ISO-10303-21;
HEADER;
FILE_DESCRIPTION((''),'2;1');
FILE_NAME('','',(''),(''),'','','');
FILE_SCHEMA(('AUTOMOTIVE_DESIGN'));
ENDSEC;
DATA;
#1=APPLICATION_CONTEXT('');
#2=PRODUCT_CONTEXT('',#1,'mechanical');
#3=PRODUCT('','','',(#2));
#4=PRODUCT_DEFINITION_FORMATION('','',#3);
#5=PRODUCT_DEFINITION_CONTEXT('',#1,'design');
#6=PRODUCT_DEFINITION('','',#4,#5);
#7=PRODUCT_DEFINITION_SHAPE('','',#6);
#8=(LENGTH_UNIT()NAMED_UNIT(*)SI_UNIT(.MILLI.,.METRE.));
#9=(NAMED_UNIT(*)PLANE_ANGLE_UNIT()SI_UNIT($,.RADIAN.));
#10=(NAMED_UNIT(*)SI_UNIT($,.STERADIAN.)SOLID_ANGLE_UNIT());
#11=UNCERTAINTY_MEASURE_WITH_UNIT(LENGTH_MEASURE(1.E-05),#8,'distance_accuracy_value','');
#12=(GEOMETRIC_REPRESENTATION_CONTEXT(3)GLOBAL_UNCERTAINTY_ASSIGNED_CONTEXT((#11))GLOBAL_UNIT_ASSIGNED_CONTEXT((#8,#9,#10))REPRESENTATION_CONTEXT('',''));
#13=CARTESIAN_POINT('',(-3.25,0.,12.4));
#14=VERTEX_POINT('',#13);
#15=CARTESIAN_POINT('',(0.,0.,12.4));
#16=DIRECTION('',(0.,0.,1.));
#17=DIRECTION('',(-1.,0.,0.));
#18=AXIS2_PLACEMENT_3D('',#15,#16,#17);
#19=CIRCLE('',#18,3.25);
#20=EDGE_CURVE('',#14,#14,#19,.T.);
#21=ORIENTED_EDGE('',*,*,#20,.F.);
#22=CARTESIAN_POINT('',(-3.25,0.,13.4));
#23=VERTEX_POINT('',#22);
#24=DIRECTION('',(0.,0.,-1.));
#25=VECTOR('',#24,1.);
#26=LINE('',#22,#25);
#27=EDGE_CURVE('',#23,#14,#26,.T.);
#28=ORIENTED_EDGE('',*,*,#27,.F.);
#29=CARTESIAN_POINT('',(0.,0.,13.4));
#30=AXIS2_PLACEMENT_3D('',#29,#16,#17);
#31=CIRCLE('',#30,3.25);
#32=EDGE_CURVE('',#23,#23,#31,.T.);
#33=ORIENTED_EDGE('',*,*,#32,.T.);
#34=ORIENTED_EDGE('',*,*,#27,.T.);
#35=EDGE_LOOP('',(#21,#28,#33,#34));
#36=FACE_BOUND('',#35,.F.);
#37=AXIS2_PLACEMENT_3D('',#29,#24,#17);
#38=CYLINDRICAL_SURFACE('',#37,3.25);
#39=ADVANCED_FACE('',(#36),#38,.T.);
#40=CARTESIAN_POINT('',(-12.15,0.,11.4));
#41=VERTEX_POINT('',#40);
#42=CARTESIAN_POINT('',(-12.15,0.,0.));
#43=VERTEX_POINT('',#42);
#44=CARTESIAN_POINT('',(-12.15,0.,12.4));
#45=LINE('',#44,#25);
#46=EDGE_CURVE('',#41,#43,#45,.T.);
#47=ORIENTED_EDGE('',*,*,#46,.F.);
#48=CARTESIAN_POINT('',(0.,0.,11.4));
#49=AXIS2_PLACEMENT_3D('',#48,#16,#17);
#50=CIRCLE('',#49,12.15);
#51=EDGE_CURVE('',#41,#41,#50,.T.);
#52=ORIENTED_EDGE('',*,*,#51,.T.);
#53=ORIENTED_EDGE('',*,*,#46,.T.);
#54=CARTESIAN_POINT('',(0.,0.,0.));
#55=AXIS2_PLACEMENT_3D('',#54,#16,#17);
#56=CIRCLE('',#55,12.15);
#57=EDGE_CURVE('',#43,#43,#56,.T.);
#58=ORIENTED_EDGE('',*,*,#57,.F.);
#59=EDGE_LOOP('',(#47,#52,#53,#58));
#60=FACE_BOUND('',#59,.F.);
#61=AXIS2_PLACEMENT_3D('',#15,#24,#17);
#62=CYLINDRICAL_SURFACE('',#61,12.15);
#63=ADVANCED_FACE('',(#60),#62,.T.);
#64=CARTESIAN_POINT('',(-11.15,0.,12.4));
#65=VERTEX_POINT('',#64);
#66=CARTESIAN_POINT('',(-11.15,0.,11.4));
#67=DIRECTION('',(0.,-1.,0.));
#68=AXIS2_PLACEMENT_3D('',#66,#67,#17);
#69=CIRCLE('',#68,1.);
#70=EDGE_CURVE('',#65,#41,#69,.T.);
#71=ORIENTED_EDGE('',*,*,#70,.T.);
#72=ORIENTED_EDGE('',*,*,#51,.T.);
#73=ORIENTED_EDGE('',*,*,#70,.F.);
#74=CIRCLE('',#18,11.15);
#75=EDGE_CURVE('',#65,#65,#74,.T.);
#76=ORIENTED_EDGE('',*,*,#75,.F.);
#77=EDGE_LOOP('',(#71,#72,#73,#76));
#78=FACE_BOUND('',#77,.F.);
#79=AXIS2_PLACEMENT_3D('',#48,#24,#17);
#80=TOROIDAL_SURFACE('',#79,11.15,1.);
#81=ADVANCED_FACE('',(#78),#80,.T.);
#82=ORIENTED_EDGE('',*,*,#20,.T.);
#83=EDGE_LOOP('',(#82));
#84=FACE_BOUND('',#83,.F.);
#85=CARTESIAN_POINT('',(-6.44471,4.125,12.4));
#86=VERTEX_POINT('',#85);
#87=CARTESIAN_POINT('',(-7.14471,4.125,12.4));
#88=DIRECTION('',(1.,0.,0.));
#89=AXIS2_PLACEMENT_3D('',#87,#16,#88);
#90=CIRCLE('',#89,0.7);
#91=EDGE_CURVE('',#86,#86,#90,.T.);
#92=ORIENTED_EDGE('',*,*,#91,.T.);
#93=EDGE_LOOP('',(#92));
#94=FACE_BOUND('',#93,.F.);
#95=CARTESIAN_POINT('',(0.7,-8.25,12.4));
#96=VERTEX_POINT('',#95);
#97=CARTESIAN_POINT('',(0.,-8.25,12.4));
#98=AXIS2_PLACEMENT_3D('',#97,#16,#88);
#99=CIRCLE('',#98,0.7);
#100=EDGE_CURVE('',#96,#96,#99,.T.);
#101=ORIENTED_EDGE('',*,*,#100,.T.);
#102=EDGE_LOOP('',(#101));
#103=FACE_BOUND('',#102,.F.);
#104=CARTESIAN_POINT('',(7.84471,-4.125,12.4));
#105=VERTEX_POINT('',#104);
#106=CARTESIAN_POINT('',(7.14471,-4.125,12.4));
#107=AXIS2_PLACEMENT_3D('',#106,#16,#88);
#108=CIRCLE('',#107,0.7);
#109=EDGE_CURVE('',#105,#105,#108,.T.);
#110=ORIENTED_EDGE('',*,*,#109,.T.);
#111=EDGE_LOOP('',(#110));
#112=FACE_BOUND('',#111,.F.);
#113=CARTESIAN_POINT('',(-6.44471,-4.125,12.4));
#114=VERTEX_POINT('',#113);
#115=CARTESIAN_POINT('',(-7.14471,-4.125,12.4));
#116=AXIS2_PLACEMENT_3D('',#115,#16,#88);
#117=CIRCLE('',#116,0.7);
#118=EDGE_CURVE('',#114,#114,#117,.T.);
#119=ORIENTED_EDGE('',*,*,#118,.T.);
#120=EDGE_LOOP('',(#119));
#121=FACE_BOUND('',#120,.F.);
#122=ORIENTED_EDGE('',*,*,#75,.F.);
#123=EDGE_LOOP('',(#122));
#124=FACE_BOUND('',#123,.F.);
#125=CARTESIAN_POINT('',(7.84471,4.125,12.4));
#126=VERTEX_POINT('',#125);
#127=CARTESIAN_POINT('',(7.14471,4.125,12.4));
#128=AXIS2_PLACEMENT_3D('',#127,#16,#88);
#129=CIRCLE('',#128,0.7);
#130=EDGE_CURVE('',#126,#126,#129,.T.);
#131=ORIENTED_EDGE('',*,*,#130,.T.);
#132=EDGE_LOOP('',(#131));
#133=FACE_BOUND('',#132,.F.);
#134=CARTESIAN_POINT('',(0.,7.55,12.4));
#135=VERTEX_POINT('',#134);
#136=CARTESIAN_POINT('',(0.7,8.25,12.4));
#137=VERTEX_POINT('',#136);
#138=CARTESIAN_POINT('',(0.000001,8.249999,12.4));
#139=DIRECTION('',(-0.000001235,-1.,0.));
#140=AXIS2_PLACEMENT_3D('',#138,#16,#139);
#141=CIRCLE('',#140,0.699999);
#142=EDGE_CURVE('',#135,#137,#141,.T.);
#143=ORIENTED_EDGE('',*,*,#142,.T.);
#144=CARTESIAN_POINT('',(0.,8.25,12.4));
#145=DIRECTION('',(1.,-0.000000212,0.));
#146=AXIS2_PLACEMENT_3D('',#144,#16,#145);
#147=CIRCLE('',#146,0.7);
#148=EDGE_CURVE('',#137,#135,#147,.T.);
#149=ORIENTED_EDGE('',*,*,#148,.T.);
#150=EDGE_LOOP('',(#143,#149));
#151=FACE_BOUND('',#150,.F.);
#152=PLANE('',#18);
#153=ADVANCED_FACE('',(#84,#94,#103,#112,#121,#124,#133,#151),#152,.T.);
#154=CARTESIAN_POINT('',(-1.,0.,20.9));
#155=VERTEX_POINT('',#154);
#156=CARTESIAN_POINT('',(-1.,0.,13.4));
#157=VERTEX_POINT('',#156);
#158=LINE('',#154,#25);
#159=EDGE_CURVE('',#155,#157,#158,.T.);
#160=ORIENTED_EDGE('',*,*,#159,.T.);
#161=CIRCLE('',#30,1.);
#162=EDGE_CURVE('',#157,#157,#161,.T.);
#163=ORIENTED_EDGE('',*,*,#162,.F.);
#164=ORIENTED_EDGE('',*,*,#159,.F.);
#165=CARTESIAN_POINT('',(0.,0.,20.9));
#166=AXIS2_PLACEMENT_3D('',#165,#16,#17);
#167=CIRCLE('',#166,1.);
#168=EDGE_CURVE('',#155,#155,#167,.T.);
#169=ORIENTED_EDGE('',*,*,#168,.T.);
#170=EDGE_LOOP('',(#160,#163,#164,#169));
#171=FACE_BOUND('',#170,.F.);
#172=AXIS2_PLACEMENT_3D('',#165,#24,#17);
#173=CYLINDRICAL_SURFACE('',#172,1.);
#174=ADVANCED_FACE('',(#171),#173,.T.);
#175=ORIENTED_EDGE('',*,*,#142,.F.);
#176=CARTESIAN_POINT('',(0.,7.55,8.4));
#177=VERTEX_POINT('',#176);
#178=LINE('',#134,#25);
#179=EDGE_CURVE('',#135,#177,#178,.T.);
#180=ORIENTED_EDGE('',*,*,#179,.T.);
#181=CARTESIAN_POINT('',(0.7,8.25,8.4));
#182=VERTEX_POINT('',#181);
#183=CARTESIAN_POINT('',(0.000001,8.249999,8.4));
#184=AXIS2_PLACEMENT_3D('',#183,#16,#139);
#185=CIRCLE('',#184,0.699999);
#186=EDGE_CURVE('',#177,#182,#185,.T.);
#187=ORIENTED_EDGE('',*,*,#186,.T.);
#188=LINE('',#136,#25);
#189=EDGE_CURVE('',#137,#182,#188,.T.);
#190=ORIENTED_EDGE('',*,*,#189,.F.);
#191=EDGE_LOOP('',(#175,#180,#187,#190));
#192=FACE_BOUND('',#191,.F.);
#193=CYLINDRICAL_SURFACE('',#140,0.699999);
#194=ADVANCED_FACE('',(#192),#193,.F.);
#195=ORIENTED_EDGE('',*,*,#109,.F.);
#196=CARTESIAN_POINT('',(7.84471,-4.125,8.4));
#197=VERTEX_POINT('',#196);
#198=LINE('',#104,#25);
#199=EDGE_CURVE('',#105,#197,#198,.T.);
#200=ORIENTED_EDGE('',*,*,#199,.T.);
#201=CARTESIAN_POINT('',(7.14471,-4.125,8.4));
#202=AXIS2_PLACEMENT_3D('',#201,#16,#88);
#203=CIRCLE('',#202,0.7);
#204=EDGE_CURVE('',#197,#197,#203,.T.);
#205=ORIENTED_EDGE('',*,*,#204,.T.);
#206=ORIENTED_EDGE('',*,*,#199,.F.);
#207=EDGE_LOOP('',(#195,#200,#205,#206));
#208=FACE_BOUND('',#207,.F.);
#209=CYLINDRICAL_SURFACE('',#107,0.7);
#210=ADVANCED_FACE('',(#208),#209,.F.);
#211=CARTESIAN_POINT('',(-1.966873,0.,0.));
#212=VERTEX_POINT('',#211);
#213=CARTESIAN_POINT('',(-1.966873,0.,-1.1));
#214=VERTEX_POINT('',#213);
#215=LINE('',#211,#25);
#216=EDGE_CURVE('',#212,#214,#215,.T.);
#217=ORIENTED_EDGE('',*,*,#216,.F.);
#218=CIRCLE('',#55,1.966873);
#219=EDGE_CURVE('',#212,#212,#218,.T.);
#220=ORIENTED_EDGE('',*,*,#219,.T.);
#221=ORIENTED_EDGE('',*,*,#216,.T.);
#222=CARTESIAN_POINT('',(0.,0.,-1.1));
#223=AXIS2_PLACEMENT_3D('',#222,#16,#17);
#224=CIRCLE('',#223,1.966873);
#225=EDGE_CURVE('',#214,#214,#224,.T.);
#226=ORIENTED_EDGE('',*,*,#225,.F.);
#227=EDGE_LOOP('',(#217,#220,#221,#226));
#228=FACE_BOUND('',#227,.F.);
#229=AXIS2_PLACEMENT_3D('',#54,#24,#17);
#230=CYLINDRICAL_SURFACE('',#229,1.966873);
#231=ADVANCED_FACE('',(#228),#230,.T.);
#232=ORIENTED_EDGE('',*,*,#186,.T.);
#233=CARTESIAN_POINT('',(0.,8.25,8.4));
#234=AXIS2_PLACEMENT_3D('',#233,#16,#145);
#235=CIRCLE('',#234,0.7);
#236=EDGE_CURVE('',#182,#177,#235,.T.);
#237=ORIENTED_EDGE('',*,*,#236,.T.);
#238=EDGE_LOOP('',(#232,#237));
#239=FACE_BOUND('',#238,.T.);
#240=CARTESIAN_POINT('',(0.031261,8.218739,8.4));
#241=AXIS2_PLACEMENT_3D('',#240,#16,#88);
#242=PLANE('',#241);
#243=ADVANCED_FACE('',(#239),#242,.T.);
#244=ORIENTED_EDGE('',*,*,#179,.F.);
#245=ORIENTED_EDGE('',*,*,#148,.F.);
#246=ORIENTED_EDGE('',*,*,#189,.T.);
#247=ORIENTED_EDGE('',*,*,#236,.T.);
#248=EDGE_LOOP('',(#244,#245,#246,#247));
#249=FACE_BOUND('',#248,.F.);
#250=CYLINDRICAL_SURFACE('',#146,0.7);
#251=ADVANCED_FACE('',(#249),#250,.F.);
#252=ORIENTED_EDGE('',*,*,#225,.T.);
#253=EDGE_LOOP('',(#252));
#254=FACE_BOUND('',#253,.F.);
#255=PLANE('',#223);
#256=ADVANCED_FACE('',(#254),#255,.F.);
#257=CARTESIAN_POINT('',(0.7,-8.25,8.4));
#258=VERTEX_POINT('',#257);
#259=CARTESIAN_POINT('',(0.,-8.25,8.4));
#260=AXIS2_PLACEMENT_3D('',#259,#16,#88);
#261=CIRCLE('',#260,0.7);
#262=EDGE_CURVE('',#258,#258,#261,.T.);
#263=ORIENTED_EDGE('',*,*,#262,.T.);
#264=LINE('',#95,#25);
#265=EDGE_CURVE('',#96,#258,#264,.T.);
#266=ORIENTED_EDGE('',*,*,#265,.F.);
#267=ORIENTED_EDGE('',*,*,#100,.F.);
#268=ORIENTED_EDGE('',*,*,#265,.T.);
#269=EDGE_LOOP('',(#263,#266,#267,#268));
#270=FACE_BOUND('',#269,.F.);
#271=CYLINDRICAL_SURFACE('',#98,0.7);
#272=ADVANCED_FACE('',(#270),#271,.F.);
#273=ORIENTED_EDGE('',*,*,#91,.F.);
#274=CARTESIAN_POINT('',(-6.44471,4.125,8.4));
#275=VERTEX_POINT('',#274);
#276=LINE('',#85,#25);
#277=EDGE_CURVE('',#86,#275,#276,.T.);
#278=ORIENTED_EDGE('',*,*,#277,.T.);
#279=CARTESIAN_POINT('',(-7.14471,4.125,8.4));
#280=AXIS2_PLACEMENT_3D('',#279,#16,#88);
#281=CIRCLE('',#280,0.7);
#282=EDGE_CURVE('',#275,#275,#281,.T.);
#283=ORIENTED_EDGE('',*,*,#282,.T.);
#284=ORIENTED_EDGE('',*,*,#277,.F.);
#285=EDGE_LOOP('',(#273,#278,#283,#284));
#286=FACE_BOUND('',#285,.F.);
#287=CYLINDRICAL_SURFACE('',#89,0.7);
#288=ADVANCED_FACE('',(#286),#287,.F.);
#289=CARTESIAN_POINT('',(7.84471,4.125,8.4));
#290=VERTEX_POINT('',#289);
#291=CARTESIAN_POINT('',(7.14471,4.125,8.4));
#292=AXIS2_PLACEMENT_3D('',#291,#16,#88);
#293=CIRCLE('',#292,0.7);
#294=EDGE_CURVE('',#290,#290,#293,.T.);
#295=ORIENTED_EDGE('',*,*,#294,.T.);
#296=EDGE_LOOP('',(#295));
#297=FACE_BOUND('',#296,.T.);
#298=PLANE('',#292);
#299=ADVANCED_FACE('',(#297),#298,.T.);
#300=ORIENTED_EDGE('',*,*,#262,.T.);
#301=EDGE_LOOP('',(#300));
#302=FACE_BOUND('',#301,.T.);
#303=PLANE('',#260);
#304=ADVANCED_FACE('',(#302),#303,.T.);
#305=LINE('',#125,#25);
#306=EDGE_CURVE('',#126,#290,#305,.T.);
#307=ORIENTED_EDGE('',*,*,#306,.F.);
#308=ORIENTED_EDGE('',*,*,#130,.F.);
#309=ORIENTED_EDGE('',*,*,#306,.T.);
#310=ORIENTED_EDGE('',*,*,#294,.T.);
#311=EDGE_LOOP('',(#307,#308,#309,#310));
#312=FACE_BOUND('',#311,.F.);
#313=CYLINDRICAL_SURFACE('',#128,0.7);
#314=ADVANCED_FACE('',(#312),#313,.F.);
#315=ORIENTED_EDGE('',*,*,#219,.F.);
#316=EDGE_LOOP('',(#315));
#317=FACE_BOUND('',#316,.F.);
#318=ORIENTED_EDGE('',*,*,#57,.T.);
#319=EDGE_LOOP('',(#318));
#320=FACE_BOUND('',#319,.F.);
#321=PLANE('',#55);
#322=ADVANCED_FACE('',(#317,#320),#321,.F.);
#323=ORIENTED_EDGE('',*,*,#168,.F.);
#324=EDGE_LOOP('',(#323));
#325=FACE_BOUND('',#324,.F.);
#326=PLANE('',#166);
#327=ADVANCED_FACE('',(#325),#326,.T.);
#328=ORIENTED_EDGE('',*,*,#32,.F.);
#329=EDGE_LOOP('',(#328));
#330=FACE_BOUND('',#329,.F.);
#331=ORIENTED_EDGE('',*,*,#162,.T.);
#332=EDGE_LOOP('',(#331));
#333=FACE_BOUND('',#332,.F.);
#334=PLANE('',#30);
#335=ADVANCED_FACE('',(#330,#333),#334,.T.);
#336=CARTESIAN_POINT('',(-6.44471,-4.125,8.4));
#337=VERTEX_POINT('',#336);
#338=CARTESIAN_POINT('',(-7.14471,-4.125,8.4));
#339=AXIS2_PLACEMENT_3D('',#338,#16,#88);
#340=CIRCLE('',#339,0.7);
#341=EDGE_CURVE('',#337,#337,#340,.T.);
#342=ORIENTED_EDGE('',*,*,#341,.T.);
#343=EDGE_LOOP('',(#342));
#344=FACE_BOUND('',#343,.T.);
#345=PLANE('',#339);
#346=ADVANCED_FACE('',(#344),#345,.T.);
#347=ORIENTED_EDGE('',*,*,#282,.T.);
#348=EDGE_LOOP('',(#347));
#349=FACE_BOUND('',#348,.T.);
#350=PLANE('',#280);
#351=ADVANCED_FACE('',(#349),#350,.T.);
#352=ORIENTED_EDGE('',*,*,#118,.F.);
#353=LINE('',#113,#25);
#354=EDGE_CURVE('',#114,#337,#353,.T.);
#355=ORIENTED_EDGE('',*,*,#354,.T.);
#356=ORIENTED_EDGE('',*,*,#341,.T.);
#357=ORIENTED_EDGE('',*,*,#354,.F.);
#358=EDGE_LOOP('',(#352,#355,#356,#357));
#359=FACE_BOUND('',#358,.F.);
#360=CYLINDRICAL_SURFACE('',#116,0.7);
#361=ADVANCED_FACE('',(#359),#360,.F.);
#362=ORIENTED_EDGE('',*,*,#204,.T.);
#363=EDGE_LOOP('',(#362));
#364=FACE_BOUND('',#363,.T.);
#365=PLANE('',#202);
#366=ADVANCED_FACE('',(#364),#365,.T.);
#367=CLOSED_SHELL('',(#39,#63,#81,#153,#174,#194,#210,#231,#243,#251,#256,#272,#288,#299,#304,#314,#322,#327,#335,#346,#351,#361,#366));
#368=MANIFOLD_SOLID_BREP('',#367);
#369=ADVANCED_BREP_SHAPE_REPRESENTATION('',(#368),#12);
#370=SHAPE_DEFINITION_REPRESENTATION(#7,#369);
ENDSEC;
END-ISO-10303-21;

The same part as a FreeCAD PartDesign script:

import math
import FreeCAD as App
import Part
import Sketcher

V = App.Vector
Q = App.Units.Quantity


def edges_at(feature, points):
    """Names of the edges that pass closest to the given points."""
    edges = feature.Shape.Edges
    near = lambda p: min(range(len(edges)), key=lambda i: edges[i].distToShape(Part.Vertex(*p))[0])
    return sorted({f"Edge{near(p) + 1}" for p in points})


def add_polygon(sketch, points):
    """Adds a closed chain of lines whose ends are joined by coincident constraints."""
    first, n = sketch.GeometryCount, len(points)
    for a, b in zip(points, points[1:] + points[:1]):
        sketch.addGeometry(Part.LineSegment(App.Vector(*a, 0), App.Vector(*b, 0)), False)
    for i in range(n):
        sketch.addConstraint(Sketcher.Constraint("Coincident", first + i, 2, first + (i + 1) % n, 1))

doc = App.newDocument("Part")
body = doc.addObject("PartDesign::Body", "Body")

# Sketch on XZ plane
sketch1 = body.newObject("Sketcher::SketchObject", "Sketch")
sketch1.AttachmentSupport = (doc.getObject("XZ_Plane"), [""])
sketch1.MapMode = "FlatFace"
add_polygon(sketch1, [(0, -1.1), (0, 20.9), (-1, 20.9), (-1, 13.4), (-3.2, 13.4), (-3.2, 12.4), (-12.2, 12.4), (-12.2, 0), (-2, 0), (-2, -1.1)])  # lines 0-9
sketch1.addConstraint([
    Sketcher.Constraint("Vertical", 0),
    Sketcher.Constraint("Horizontal", 1),
    Sketcher.Constraint("Vertical", 2),
    Sketcher.Constraint("Horizontal", 3),
    Sketcher.Constraint("Vertical", 4),
    Sketcher.Constraint("Horizontal", 5),
    Sketcher.Constraint("Vertical", 6),
    Sketcher.Constraint("Horizontal", 7),
    Sketcher.Constraint("Vertical", 8),
    Sketcher.Constraint("Horizontal", 9),
    Sketcher.Constraint("PointOnObject", 0, 2, -2),
    Sketcher.Constraint("PointOnObject", 6, 2, -1),
    Sketcher.Constraint("Equal", 1, 4),
    Sketcher.Constraint("DistanceX", 1, 2, 1, 1, Q("1 mm")),
    Sketcher.Constraint("DistanceY", 0, 1, 0, 2, Q("22 mm")),
    Sketcher.Constraint("DistanceX", 5, 2, 5, 1, Q("8.9 mm")),
    Sketcher.Constraint("DistanceY", 2, 2, 2, 1, Q("7.5 mm")),
    Sketcher.Constraint("DistanceY", 6, 2, 6, 1, Q("12.4 mm")),
    Sketcher.Constraint("DistanceX", 3, 2, 3, 1, Q("2.25 mm")),
    Sketcher.Constraint("DistanceX", 7, 1, 7, 2, Q("10.183127 mm")),
])
revolution = body.newObject("PartDesign::Revolution", "Revolution")
revolution.Profile = sketch1
revolution.ReferenceAxis = (sketch1, ["V_Axis"])
revolution.Angle = 360

# Sketch on XY plane
sketch2 = body.newObject("Sketcher::SketchObject", "Sketch001")
sketch2.AttachmentSupport = (doc.getObject("XY_Plane"), [""])
sketch2.MapMode = "FlatFace"
sketch2.AttachmentOffset = App.Placement(V(0, 0, 12.4), App.Rotation())
sketch2.addGeometry([
    Part.ArcOfCircle(Part.Circle(V(0, 8.2, 0), V(0, 0, 1), 0.7), math.radians(-90), math.radians(0)),  # 0
    Part.ArcOfCircle(Part.Circle(V(0, 8.3, 0), V(0, 0, 1), 0.7), math.radians(0), math.radians(270)),  # 1
    Part.Circle(V(-7.1, 4.1, 0), V(0, 0, 1), 0.7),  # 2
    Part.Circle(V(-7.1, -4.1, 0), V(0, 0, 1), 0.7),  # 3
    Part.Circle(V(0, -8.2, 0), V(0, 0, 1), 0.7),  # 4
    Part.Circle(V(7.1, -4.1, 0), V(0, 0, 1), 0.7),  # 5
    Part.Circle(V(7.1, 4.1, 0), V(0, 0, 1), 0.7),  # 6
], False)
sketch2.addConstraint([
    Sketcher.Constraint("Tangent", 0, 1, 1, 2),
    Sketcher.Constraint("Coincident", 1, 1, 0, 2),
    Sketcher.Constraint("Equal", 1, 2),
    Sketcher.Constraint("Equal", 2, 3),
    Sketcher.Constraint("Equal", 3, 4),
    Sketcher.Constraint("Equal", 4, 5),
    Sketcher.Constraint("Equal", 5, 6),
    Sketcher.Constraint("Symmetric", 0, 3, 4, 3, -1, 1),
    Sketcher.Constraint("Symmetric", 2, 3, 5, 3, -1, 1),
    Sketcher.Constraint("Symmetric", 3, 3, 6, 3, -1, 1),
    Sketcher.Constraint("Symmetric", 3, 3, 5, 3, -2),
    Sketcher.Constraint("PointOnObject", 0, 3, -2),
    Sketcher.Constraint("PointOnObject", 0, 1, -2),
    Sketcher.Constraint("Horizontal", 0, 3, 1, 1),
    Sketcher.Constraint("Diameter", 2, Q("1.4 mm")),
    Sketcher.Constraint("DistanceY", 4, 3, 0, 3, Q("16.499999 mm")),
    Sketcher.Constraint("DistanceY", 3, 3, 2, 3, Q("8.25 mm")),
    Sketcher.Constraint("DistanceX", 2, 3, -1, 1, Q("7.14471 mm")),
])
pocket1 = body.newObject("PartDesign::Pocket", "Pocket")
pocket1.Profile = sketch2
pocket1.Length = 4
doc.recompute()

fillet = body.newObject("PartDesign::Fillet", "Fillet")
fillet.Base = (pocket1, edges_at(pocket1, [(12.15, 0, 12.4)]))
fillet.Radius = 1

doc.recompute()
